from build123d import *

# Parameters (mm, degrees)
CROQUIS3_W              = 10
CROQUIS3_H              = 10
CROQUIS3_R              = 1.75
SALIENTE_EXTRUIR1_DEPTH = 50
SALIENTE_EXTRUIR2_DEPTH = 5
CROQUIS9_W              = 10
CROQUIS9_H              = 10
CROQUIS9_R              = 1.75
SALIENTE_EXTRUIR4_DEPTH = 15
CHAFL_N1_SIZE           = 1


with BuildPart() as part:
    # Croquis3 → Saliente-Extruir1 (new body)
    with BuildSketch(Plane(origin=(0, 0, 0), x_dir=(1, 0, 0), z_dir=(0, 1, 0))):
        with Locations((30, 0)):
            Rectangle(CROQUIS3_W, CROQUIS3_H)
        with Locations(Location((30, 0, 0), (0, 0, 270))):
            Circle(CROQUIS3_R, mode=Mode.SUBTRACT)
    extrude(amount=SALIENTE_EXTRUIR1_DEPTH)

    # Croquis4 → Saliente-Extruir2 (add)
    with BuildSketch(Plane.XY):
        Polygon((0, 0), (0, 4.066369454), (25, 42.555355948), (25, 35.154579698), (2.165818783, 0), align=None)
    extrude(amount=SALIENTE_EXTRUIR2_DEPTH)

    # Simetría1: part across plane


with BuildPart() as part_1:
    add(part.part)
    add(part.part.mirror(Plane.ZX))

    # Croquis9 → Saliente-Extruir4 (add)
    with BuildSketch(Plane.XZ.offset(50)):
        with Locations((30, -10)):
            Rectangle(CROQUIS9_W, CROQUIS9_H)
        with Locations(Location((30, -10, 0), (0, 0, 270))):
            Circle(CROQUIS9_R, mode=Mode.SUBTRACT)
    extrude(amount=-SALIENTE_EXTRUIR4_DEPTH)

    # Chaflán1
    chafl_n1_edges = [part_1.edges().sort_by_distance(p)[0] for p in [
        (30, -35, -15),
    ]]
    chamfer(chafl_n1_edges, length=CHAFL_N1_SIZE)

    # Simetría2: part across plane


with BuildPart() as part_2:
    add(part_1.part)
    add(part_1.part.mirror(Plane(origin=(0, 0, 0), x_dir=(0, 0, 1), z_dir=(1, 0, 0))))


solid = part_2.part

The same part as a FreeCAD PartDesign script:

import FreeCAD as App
import Part
import Sketcher

V = App.Vector


def edges_at(feature, points):
    """Names of the edges that pass closest to the given points."""
    edges = feature.Shape.Edges
    near = lambda p: min(range(len(edges)), key=lambda i: edges[i].distToShape(Part.Vertex(*p))[0])
    return sorted({f"Edge{near(p) + 1}" for p in points})

doc = App.newDocument("Part")
body = doc.addObject("PartDesign::Body", "Body")

sketch1 = body.newObject("Sketcher::SketchObject", "Sketch")
sketch1.AttachmentSupport = (doc.getObject("XZ_Plane"), [""])
sketch1.MapMode = "FlatFace"
sketch1.addGeometry([
    Part.LineSegment(V(25, -5, 0), V(25, 5, 0)),
    Part.LineSegment(V(25, 5, 0), V(35, 5, 0)),
    Part.LineSegment(V(35, 5, 0), V(35, -5, 0)),
    Part.LineSegment(V(35, -5, 0), V(25, -5, 0)),
    Part.Circle(V(30, 0, 0), V(0, 0, 1), 1.8),
], False)
sketch1.addConstraint([
    Sketcher.Constraint("Coincident", 0, 2, 1, 1),
    Sketcher.Constraint("Coincident", 1, 2, 2, 1),
    Sketcher.Constraint("Coincident", 2, 2, 3, 1),
    Sketcher.Constraint("Coincident", 3, 2, 0, 1),
    Sketcher.Constraint("Vertical", 0),
    Sketcher.Constraint("Horizontal", 1),
    Sketcher.Constraint("Vertical", 2),
    Sketcher.Constraint("Horizontal", 3),
    Sketcher.Constraint("PointOnObject", 4, 3, -1),
    Sketcher.Constraint("Equal", 3, 0),
    Sketcher.Constraint("Diameter", 4, 3.5),
    Sketcher.Constraint("DistanceX", 1, 1, 1, 2, 10.0),
    Sketcher.Constraint("DistanceX", -1, 1, 4, 3, 30.0),
    Sketcher.Constraint("DistanceX", -1, 1, 0, 2, 25.0),
    Sketcher.Constraint("DistanceY", -1, 1, 0, 2, 5.0),
])
pad1 = body.newObject("PartDesign::Pad", "Pad")
pad1.Profile = sketch1
pad1.Length = 50
pad1.Reversed = True

sketch2 = body.newObject("Sketcher::SketchObject", "Sketch001")
sketch2.AttachmentSupport = (doc.getObject("XY_Plane"), [""])
sketch2.MapMode = "FlatFace"
sketch2.addGeometry([
    Part.LineSegment(V(0, 4.1, 0), V(0, 0, 0)),
    Part.LineSegment(V(0, 0, 0), V(2.2, 0, 0)),
    Part.LineSegment(V(2.2, 0, 0), V(25, 35.2, 0)),
    Part.LineSegment(V(25, 35.2, 0), V(25, 42.6, 0)),
    Part.LineSegment(V(25, 42.6, 0), V(0, 4.1, 0)),
], False)
sketch2.addConstraint([
    Sketcher.Constraint("Coincident", 0, 2, 1, 1),
    Sketcher.Constraint("Coincident", 1, 2, 2, 1),
    Sketcher.Constraint("Coincident", 2, 2, 3, 1),
    Sketcher.Constraint("Coincident", 3, 2, 4, 1),
    Sketcher.Constraint("Coincident", 4, 2, 0, 1),
    Sketcher.Constraint("Vertical", 0),
    Sketcher.Constraint("Horizontal", 1),
    Sketcher.Constraint("Vertical", 3),
    Sketcher.Constraint("Coincident", 0, 2, -1, 1),
    Sketcher.Constraint("Parallel", 2, 4),
    Sketcher.Constraint("DistanceX", -1, 1, 2, 2, 25.0),
    Sketcher.Constraint("DistanceX", 1, 1, 1, 2, 2.165819),
    Sketcher.Constraint("DistanceY", 0, 2, 0, 1, 4.066369),
    Sketcher.Constraint("DistanceY", 3, 1, 3, 2, 7.400776),
])
pad2 = body.newObject("PartDesign::Pad", "Pad001")
pad2.Profile = sketch2
pad2.Length = 5
body2 = doc.addObject("PartDesign::Body", "Body001")
doc.recompute()

body2.BaseFeature = body
doc.recompute()

mirroring = doc.addObject("Part::Mirroring", "Mirroring")
mirroring.Source = body
mirroring.Base = V(0, 0, 0)
mirroring.Normal = V(0, 1, 0)
body3 = doc.addObject("PartDesign::Body", "Body002")
body3.BaseFeature = mirroring
boolean = body2.newObject("PartDesign::Boolean", "Boolean")
boolean.Type = "Fuse"
boolean.addObjects([body3])
doc.recompute()

sketch3 = body2.newObject("Sketcher::SketchObject", "Sketch002")
sketch3.AttachmentSupport = (doc.getObject("XZ_Plane001"), [""])
sketch3.MapMode = "FlatFace"
sketch3.AttachmentOffset = App.Placement(V(0, 0, 50), App.Rotation())
sketch3.addGeometry([
    Part.LineSegment(V(25, -5, 0), V(25, -15, 0)),
    Part.LineSegment(V(25, -15, 0), V(35, -15, 0)),
    Part.LineSegment(V(35, -15, 0), V(35, -5, 0)),
    Part.LineSegment(V(35, -5, 0), V(25, -5, 0)),
    Part.Circle(V(30, -10, 0), V(0, 0, 1), 1.8),
], False)
sketch3.addConstraint([
    Sketcher.Constraint("Coincident", 0, 2, 1, 1),
    Sketcher.Constraint("Coincident", 1, 2, 2, 1),
    Sketcher.Constraint("Coincident", 2, 2, 3, 1),
    Sketcher.Constraint("Coincident", 3, 2, 0, 1),
    Sketcher.Constraint("Vertical", 0),
    Sketcher.Constraint("Horizontal", 1),
    Sketcher.Constraint("Vertical", 2),
    Sketcher.Constraint("Horizontal", 3),
    Sketcher.Constraint("Equal", 3, 0),
    Sketcher.Constraint("Diameter", 4, 3.5),
    Sketcher.Constraint("DistanceX", 1, 1, 1, 2, 10.0),
    Sketcher.Constraint("DistanceX", -1, 1, 4, 3, 30.0),
    Sketcher.Constraint("DistanceY", 4, 3, -1, 1, 10.0),
    Sketcher.Constraint("DistanceX", -1, 1, 0, 2, 25.0),
    Sketcher.Constraint("DistanceY", 0, 2, -1, 1, 15.0),
])
pad3 = body2.newObject("PartDesign::Pad", "Pad002")
pad3.Profile = sketch3
pad3.Length = 15
pad3.Reversed = True
doc.recompute()

chamfer = body2.newObject("PartDesign::Chamfer", "Chamfer")
chamfer.Base = (pad3, edges_at(pad3, [(30, -35, -15)]))
chamfer.Size = 1
body4 = doc.addObject("PartDesign::Body", "Body003")
doc.recompute()

body4.BaseFeature = body2
doc.recompute()

mirroring2 = doc.addObject("Part::Mirroring", "Mirroring001")
mirroring2.Source = body2
mirroring2.Base = V(0, 0, 0)
mirroring2.Normal = V(1, 0, 0)
body5 = doc.addObject("PartDesign::Body", "Body004")
body5.BaseFeature = mirroring2
boolean2 = body4.newObject("PartDesign::Boolean", "Boolean001")
boolean2.Type = "Fuse"
boolean2.addObjects([body5])
doc.recompute()
mirroring.Visibility = False
mirroring2.Visibility = False

doc.recompute()
